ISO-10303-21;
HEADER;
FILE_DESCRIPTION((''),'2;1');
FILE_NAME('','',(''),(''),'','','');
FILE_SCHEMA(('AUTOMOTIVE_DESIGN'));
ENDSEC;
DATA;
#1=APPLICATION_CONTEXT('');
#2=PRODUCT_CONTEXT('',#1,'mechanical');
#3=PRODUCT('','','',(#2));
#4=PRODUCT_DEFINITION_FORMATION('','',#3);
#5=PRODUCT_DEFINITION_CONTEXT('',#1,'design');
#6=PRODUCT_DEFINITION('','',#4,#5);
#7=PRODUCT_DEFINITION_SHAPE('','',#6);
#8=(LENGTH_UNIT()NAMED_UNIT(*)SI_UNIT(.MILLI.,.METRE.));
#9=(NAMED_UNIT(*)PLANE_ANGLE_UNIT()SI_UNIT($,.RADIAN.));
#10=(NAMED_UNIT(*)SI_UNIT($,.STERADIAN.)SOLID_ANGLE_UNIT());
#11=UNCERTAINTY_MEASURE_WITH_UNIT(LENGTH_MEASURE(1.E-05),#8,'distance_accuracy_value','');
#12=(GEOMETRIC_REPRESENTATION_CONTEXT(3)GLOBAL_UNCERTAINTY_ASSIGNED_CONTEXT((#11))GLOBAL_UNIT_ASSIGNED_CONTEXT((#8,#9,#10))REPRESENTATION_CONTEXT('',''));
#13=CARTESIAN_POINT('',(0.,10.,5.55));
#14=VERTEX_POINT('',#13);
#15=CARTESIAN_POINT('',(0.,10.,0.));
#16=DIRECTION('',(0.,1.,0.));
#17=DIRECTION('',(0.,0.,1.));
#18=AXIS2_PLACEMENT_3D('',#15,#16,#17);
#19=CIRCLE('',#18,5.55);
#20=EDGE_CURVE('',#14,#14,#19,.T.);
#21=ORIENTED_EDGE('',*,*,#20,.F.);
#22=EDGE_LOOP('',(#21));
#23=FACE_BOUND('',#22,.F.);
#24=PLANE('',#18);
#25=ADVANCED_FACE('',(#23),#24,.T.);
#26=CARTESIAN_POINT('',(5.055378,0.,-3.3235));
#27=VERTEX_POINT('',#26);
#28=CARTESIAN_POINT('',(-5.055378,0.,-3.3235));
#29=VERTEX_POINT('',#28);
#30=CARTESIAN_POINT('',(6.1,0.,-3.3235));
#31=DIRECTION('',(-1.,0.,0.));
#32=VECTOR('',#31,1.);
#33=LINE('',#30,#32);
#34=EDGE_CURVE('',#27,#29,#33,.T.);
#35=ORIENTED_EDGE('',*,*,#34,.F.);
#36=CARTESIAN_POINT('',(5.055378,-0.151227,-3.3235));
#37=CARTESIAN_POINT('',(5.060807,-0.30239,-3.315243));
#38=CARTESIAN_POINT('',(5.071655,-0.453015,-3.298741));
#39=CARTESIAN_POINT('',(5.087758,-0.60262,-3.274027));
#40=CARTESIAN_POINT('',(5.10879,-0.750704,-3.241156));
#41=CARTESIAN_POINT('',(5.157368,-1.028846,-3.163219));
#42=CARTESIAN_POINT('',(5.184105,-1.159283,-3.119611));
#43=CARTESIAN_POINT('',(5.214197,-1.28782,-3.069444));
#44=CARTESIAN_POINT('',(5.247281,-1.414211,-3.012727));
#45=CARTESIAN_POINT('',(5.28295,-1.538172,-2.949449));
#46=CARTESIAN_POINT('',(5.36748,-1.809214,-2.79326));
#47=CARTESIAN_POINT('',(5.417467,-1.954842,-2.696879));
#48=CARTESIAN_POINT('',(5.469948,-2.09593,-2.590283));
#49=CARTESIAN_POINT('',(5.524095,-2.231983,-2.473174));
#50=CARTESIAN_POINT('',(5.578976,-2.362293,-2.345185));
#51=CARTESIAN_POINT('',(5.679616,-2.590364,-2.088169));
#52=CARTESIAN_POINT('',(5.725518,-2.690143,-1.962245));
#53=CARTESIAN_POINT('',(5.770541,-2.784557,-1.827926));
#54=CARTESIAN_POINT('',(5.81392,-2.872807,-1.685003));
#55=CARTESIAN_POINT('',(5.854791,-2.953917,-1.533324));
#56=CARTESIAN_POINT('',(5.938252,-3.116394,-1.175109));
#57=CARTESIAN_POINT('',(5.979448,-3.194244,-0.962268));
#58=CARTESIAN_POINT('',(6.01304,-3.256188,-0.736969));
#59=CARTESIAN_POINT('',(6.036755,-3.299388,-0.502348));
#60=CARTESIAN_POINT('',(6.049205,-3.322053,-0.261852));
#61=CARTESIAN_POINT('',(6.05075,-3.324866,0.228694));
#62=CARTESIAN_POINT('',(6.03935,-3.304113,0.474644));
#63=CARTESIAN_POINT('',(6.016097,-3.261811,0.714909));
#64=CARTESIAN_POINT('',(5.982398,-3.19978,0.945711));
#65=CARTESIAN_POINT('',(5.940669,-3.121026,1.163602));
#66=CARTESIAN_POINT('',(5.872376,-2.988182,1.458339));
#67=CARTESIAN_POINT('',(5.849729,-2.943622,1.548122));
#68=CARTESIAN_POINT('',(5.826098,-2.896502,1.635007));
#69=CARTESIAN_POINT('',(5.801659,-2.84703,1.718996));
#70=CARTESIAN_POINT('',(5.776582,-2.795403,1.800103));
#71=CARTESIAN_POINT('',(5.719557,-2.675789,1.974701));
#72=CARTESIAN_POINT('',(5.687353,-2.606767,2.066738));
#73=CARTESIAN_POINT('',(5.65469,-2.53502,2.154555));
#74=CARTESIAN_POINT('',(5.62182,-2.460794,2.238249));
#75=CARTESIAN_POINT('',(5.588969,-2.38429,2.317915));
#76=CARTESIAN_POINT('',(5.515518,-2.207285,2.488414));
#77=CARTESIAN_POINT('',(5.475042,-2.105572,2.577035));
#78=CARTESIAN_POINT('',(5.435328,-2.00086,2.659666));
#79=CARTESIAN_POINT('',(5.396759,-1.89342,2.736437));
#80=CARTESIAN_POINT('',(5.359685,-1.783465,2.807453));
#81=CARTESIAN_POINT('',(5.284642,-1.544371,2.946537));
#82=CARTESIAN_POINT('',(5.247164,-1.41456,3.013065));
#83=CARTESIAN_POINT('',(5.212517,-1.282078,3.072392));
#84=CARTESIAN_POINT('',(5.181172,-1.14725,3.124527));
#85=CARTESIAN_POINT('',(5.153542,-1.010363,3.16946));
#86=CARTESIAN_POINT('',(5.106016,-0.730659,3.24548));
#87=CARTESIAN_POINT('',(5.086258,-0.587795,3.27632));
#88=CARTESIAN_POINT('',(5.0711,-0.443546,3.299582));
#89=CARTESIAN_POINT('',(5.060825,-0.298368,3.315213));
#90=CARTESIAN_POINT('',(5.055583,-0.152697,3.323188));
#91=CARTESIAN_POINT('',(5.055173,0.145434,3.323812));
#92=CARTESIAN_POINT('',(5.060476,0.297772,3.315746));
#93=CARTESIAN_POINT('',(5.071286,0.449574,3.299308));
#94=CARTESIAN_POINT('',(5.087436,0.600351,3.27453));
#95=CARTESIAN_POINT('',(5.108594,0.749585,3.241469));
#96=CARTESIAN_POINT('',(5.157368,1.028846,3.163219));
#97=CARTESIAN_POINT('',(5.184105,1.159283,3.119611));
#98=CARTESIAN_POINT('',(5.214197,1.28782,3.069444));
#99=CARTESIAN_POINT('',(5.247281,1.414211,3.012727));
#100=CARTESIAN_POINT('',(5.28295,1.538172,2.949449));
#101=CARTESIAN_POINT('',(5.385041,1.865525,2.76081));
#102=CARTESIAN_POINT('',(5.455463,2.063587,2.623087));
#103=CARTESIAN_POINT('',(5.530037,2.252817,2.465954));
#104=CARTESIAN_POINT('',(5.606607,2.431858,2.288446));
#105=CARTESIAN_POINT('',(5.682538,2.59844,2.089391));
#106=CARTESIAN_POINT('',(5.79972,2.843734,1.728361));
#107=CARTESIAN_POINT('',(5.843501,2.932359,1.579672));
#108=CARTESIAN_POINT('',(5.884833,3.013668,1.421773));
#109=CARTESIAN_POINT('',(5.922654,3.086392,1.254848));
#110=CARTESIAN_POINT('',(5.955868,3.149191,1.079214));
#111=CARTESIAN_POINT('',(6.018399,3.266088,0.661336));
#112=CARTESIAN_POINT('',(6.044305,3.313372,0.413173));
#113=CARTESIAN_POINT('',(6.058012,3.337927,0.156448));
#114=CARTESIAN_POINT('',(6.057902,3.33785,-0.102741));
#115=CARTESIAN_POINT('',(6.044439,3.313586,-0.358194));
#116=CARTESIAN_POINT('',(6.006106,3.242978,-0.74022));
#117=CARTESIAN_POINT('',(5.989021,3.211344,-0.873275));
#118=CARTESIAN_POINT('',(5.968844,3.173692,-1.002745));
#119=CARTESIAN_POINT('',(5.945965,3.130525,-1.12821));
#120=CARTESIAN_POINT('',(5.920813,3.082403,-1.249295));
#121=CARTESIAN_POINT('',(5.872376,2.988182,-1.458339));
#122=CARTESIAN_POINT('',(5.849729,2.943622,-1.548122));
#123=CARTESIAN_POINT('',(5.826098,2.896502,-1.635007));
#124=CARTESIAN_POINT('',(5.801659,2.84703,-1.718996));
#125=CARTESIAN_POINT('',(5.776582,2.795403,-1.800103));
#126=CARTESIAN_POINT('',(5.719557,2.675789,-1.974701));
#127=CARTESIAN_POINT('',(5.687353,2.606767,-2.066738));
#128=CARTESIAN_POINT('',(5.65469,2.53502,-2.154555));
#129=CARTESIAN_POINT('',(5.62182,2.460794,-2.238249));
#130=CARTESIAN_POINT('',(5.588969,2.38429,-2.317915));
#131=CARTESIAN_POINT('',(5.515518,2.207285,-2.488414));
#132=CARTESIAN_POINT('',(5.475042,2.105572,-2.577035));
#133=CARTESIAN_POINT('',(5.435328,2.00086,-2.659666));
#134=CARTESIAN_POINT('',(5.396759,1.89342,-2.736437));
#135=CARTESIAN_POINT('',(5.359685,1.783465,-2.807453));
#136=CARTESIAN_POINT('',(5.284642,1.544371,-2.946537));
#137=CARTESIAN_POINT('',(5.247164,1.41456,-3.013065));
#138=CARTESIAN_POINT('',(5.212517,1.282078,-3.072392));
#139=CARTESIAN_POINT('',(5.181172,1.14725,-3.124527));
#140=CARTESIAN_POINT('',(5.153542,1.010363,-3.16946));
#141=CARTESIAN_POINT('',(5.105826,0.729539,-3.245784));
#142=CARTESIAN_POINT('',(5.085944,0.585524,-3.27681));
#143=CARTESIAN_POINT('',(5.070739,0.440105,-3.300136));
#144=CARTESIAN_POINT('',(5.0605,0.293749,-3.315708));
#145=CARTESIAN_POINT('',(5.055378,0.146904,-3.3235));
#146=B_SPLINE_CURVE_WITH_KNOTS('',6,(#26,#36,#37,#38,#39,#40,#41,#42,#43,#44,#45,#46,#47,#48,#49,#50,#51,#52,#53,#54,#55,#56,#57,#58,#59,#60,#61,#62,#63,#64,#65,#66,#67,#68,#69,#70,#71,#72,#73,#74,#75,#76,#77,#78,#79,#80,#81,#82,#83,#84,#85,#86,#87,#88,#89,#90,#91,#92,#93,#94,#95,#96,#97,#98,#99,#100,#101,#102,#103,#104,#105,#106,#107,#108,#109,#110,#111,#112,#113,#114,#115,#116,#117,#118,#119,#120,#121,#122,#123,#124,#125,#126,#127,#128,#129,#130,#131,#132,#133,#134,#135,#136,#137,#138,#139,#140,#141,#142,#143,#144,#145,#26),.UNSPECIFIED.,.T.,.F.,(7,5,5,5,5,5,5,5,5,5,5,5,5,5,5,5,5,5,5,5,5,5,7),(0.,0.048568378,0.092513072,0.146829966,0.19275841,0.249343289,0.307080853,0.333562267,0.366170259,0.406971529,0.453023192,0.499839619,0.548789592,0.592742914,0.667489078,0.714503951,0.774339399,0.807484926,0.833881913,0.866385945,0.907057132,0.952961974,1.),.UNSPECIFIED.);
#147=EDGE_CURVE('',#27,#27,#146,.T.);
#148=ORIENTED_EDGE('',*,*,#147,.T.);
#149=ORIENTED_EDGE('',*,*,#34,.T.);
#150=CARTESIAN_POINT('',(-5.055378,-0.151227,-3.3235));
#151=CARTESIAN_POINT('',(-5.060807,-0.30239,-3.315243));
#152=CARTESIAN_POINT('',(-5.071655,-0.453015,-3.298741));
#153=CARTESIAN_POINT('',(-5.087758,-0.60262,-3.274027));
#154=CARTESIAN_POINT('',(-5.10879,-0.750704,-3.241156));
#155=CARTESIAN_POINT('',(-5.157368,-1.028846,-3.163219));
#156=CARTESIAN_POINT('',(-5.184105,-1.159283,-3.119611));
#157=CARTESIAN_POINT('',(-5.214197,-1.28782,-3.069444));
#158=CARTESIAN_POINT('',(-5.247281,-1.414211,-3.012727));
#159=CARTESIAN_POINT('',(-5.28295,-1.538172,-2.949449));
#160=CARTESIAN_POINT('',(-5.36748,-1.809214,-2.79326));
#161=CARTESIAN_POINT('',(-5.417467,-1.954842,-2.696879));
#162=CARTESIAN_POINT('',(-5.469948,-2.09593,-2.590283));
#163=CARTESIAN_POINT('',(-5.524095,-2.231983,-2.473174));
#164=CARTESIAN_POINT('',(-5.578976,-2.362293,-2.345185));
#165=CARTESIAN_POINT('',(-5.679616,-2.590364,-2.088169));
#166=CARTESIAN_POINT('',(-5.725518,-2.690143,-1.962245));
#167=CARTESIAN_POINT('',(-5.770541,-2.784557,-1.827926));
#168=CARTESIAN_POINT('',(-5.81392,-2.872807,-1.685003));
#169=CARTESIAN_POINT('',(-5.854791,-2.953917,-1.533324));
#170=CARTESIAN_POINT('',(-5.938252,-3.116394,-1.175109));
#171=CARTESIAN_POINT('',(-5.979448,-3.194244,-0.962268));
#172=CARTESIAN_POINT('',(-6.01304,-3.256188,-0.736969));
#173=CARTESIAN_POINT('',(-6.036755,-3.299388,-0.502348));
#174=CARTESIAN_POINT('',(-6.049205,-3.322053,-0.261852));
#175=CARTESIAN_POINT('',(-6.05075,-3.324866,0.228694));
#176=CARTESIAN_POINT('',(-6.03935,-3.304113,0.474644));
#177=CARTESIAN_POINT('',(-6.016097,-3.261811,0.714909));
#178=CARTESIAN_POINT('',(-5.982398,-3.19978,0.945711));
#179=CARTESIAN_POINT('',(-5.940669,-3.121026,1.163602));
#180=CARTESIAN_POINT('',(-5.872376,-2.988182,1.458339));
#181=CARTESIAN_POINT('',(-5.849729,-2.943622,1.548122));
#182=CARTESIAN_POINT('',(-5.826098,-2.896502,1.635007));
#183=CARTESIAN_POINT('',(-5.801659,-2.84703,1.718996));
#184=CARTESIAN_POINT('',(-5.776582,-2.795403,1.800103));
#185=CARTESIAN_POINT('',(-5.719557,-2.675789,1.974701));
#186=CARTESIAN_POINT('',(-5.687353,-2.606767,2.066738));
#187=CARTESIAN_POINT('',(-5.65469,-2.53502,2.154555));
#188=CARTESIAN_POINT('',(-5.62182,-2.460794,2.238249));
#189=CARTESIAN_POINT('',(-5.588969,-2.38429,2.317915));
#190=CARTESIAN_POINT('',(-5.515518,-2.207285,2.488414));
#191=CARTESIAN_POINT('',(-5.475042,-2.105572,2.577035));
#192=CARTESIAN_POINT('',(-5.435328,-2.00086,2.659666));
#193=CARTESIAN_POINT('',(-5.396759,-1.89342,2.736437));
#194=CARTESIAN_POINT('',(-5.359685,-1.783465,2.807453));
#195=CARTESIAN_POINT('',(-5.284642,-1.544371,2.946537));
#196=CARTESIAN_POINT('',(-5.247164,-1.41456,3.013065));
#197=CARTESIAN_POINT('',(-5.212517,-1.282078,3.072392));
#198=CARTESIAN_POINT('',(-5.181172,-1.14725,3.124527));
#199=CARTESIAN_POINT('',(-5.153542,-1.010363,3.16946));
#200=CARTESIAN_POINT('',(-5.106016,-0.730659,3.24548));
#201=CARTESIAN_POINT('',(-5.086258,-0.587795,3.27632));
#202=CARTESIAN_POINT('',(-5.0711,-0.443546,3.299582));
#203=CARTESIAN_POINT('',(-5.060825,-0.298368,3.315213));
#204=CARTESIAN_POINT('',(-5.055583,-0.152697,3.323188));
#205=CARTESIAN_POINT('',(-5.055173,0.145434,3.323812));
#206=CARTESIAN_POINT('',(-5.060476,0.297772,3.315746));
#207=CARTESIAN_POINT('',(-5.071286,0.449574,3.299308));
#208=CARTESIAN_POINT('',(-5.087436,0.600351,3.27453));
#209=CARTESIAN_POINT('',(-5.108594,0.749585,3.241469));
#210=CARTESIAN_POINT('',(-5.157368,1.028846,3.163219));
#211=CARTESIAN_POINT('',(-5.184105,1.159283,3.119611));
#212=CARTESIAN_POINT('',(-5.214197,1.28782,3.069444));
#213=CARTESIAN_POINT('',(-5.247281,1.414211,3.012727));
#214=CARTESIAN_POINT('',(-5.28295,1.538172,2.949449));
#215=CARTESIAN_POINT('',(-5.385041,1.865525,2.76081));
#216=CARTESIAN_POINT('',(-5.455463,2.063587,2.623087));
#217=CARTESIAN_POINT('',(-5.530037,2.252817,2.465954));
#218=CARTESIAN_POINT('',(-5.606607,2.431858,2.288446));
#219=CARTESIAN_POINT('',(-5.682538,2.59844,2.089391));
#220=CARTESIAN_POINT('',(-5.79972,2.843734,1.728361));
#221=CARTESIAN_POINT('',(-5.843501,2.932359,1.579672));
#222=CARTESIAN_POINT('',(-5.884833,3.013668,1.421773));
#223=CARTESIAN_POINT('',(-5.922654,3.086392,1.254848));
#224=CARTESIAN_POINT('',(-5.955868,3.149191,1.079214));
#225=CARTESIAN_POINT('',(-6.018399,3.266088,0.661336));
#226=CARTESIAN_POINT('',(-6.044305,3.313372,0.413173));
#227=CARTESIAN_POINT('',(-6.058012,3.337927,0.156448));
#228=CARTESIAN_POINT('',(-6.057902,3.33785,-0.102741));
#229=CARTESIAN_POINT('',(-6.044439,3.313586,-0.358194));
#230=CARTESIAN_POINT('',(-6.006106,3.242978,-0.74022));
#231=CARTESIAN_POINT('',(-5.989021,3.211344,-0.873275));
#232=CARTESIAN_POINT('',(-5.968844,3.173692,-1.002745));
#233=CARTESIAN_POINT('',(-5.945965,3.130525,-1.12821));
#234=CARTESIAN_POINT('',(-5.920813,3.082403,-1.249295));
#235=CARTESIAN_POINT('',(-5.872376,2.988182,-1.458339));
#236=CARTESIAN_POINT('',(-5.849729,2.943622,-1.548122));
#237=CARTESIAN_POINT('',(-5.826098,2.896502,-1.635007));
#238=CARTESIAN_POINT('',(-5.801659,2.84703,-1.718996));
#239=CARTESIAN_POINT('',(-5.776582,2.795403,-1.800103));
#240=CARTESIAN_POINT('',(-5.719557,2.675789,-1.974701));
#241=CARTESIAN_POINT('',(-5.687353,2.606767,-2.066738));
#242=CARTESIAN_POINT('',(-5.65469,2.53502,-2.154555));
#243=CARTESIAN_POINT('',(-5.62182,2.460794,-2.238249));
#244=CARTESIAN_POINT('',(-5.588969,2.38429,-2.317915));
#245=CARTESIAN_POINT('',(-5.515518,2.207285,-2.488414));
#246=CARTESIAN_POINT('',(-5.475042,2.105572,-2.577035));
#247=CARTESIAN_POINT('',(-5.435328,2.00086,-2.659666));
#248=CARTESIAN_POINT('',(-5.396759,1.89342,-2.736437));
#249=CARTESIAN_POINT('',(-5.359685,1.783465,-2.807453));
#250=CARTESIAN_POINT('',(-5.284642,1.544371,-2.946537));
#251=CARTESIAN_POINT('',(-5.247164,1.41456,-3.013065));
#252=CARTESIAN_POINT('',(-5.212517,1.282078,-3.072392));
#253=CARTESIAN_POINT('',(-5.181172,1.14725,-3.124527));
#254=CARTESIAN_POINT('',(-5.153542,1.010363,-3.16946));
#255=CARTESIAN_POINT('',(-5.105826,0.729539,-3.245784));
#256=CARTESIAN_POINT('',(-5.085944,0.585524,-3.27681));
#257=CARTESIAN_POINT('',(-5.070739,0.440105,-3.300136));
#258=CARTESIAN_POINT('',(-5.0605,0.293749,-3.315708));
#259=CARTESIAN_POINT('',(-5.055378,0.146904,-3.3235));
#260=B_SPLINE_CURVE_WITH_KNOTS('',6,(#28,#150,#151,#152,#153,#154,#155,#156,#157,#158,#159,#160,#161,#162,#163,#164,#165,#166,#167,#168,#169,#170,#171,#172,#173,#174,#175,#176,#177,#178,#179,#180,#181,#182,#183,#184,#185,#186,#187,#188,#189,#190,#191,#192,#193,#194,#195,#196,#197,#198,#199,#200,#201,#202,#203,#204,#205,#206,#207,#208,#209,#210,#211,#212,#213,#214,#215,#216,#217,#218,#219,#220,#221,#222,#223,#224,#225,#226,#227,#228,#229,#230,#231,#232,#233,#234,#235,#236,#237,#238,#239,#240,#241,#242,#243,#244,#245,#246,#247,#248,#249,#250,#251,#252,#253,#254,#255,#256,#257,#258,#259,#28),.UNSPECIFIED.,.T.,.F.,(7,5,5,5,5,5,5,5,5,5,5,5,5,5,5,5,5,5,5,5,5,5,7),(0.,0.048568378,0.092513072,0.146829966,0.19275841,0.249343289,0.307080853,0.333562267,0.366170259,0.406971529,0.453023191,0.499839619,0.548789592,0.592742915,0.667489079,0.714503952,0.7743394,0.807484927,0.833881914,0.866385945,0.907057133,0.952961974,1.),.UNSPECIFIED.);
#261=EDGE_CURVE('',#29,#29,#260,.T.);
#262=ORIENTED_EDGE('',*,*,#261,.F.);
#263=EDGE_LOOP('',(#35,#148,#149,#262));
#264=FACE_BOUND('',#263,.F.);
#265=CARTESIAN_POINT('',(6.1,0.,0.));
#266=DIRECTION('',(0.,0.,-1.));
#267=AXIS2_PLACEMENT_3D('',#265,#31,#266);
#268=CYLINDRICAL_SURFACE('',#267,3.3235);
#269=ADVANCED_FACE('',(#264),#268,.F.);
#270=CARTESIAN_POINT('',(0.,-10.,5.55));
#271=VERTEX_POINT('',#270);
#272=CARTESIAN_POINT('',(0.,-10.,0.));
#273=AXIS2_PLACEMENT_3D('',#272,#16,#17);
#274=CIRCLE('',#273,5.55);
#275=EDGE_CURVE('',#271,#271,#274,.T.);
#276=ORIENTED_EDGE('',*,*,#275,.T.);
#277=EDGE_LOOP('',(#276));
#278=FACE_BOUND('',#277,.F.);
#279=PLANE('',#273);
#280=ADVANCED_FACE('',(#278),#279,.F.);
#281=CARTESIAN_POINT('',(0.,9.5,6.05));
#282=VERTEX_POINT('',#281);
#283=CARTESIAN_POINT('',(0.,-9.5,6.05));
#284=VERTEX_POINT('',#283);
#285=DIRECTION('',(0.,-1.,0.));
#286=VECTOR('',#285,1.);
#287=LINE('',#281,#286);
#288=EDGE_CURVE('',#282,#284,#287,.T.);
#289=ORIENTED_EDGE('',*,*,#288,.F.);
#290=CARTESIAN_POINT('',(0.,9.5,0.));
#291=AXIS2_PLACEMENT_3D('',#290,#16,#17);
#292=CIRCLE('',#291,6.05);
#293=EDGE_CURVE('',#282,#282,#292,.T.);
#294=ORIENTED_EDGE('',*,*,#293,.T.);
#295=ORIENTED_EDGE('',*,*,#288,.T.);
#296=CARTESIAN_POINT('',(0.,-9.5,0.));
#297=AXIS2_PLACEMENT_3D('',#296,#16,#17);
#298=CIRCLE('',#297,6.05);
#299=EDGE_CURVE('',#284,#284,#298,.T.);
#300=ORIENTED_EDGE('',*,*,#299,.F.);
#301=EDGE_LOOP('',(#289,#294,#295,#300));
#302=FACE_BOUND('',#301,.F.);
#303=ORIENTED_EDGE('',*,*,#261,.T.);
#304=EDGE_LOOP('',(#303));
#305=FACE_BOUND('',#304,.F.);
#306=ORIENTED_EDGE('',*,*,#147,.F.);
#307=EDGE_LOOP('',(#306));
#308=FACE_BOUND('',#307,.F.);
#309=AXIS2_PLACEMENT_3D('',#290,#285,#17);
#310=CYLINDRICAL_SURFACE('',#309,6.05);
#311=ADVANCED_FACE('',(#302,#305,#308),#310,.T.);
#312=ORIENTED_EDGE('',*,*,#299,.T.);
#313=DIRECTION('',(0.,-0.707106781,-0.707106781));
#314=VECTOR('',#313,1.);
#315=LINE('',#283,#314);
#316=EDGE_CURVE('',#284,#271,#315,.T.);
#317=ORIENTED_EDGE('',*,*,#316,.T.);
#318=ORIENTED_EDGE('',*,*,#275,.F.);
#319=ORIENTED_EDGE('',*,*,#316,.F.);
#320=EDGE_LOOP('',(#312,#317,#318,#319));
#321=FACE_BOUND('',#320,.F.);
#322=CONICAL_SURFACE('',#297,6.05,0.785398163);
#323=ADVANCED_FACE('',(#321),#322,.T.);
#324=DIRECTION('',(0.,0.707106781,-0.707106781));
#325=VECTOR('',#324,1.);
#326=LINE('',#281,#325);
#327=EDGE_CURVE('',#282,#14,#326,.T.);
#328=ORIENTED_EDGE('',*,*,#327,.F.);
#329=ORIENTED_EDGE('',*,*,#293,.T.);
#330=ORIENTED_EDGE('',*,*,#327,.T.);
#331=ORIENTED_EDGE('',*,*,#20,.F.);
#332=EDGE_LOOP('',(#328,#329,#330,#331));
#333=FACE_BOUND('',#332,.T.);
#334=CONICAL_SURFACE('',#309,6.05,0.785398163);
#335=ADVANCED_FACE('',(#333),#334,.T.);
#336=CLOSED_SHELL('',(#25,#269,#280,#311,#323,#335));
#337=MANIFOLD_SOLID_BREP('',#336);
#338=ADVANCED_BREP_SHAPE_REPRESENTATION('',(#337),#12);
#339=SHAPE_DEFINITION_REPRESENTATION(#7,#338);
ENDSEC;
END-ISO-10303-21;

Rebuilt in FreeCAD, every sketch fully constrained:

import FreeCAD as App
import Part
import Sketcher
from FreeCAD import Vector


def add_polygon(sketch, points):
    """Adds a closed chain of lines whose ends are joined by coincident constraints."""
    first, n = sketch.GeometryCount, len(points)
    for a, b in zip(points, points[1:] + points[:1]):
        sketch.addGeometry(Part.LineSegment(App.Vector(*a, 0), App.Vector(*b, 0)), False)
    for i in range(n):
        sketch.addConstraint(Sketcher.Constraint("Coincident", first + i, 2, first + (i + 1) % n, 1))

doc = App.newDocument("Part")
body = doc.addObject("PartDesign::Body", "Body")

# Sketch on YZ plane
sketch1 = body.newObject("Sketcher::SketchObject", "Sketch")
sketch1.AttachmentSupport = (doc.getObject("YZ_Plane"), [""])
sketch1.MapMode = "FlatFace"
add_polygon(sketch1, [(10, 5.5), (9.5, 6), (-9.5, 6), (-10, 5.5), (-10, 0), (10, 0)])  # lines 0-5
sketch1.addConstraint([
    Sketcher.Constraint("Horizontal", 1),
    Sketcher.Constraint("Vertical", 3),
    Sketcher.Constraint("Horizontal", 4),
    Sketcher.Constraint("Vertical", 5),
    Sketcher.Constraint("Symmetric", 3, 2, 4, 2, -1, 1),
    Sketcher.Constraint("Perpendicular", 0, 2),
    Sketcher.Constraint("Horizontal", 2, 2, 5, 2),
    Sketcher.Constraint("Equal", 0, 2),
    Sketcher.Constraint("DistanceX", 4, 1, 4, 2, 20.0),
    Sketcher.Constraint("DistanceX", 2, 2, 1, 2, 0.5),
    Sketcher.Constraint("DistanceY", -1, 1, 0, 2, 6.05),
])
revolution = body.newObject("PartDesign::Revolution", "Revolution")
revolution.Profile = sketch1
revolution.ReferenceAxis = (sketch1, ["H_Axis"])
revolution.Angle = 360

# Sketch on YZ plane
sketch2 = body.newObject("Sketcher::SketchObject", "Sketch001")
sketch2.AttachmentSupport = (doc.getObject("YZ_Plane"), [""])
sketch2.MapMode = "FlatFace"
sketch2.AttachmentOffset = App.Placement(Vector(0, 0, 6.1), App.Rotation())
sketch2.addGeometry([
    Part.Circle(Vector(0, 0, 0), Vector(0, 0, 1), 3.3),
    Part.Circle(Vector(0, 0, 0), Vector(0, 0, 1), 3.3),
], False)
sketch2.addConstraint([
    Sketcher.Constraint("Coincident", 0, 3, -1, 1),
    Sketcher.Constraint("Coincident", 1, 3, -1, 1),
    Sketcher.Constraint("Equal", 0, 1),
    Sketcher.Constraint("Diameter", 0, 6.647),
])
doc.recompute()
hole = body.newObject("PartDesign::Hole", "Hole")
hole.Profile = sketch2
hole.ThreadType = "None"
hole.Diameter = 6.647
hole.DepthType = "ThroughAll"

doc.recompute()
